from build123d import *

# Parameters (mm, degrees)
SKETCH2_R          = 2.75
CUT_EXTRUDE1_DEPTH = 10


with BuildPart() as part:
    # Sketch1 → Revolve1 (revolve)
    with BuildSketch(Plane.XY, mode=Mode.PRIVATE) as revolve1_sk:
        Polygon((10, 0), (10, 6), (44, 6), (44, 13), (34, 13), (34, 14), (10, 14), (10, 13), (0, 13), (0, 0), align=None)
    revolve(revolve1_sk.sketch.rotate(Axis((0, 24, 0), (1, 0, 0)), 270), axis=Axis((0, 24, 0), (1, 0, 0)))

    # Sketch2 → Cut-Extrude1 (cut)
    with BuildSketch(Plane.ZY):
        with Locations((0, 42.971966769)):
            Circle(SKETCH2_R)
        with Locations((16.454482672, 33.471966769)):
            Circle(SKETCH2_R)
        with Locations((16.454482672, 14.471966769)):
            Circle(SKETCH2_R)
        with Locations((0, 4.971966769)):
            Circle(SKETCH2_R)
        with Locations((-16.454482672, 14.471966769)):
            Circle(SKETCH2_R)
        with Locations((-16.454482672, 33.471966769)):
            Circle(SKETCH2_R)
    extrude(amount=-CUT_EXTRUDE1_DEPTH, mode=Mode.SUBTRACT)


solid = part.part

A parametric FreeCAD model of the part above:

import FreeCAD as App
import Part
import Sketcher
from FreeCAD import Vector
Q = App.Units.Quantity


def add_polygon(sketch, points):
    """Adds a closed chain of lines whose ends are joined by coincident constraints."""
    first, n = sketch.GeometryCount, len(points)
    for a, b in zip(points, points[1:] + points[:1]):
        sketch.addGeometry(Part.LineSegment(App.Vector(*a, 0), App.Vector(*b, 0)), False)
    for i in range(n):
        sketch.addConstraint(Sketcher.Constraint("Coincident", first + i, 2, first + (i + 1) % n, 1))

doc = App.newDocument("Part")
params = doc.addObject("Spreadsheet::Sheet", "Params")
for row, (alias, value) in enumerate([
    ("sketch1_width", "34 mm"),
    ("sketch1_width2", "10 mm"),
    ("sketch1_height", "6 mm"),
    ("sketch1_height2", "7 mm"),
    ("sketch1_height3", "1 mm"),
    ("revolution_angle", "360 deg"),
    ("sketch2_diameter", "5.5 mm"),
    ("pocket1_length", "10 mm"),
], start=1):
    params.set(f"A{row}", alias)
    params.set(f"B{row}", "=" + value)
    params.setAlias(f"B{row}", alias)

body = doc.addObject("PartDesign::Body", "Body")

# Sketch on XY plane
sketch1 = body.newObject("Sketcher::SketchObject", "Sketch")
sketch1.AttachmentSupport = (doc.getObject("XY_Plane"), [""])
sketch1.MapMode = "FlatFace"
add_polygon(sketch1, [(10, 0), (10, 6), (44, 6), (44, 13), (34, 13), (34, 14), (10, 14), (10, 13), (0, 13), (0, 0)])  # lines 0-9
sketch1.addGeometry(Part.LineSegment(Vector(0, 24, 0), Vector(44, 24, 0)), True)  # axis
sketch1.addConstraint([
    Sketcher.Constraint("Vertical", 0),
    Sketcher.Constraint("Horizontal", 1),
    Sketcher.Constraint("Vertical", 2),
    Sketcher.Constraint("Horizontal", 3),
    Sketcher.Constraint("Vertical", 4),
    Sketcher.Constraint("Horizontal", 5),
    Sketcher.Constraint("Vertical", 6),
    Sketcher.Constraint("Horizontal", 7),
    Sketcher.Constraint("Vertical", 8),
    Sketcher.Constraint("Horizontal", 9),
    Sketcher.Constraint("Horizontal", 10),
    Sketcher.Constraint("Coincident", 8, 2, -1, 1),
    Sketcher.Constraint("PointOnObject", 10, 1, -2),
    Sketcher.Constraint("Horizontal", 3, 2, 6, 2),
    Sketcher.Constraint("Vertical", 0, 2, 5, 2),
    Sketcher.Constraint("Vertical", 2, 2, 10, 2),
    Sketcher.Constraint("Equal", 3, 7),
    Sketcher.Constraint("DistanceX", 1, 1, 1, 2, Q("34 mm")),
    Sketcher.Constraint("DistanceX", 3, 2, 3, 1, Q("10 mm")),
    Sketcher.Constraint("DistanceY", 0, 1, 0, 2, Q("6 mm")),
    Sketcher.Constraint("DistanceY", 2, 1, 2, 2, Q("7 mm")),
    Sketcher.Constraint("DistanceY", 4, 1, 4, 2, Q("1 mm")),
    Sketcher.Constraint("DistanceY", -1, 1, 10, 1, Q("24 mm")),
])
sketch1.setExpression("Constraints[27]", "Params.sketch1_width")
sketch1.setExpression("Constraints[28]", "Params.sketch1_width2")
sketch1.setExpression("Constraints[29]", "Params.sketch1_height")
sketch1.setExpression("Constraints[30]", "Params.sketch1_height2")
sketch1.setExpression("Constraints[31]", "Params.sketch1_height3")
revolution = body.newObject("PartDesign::Revolution", "Revolution")
revolution.Profile = sketch1
revolution.ReferenceAxis = (sketch1, ["Axis0"])
revolution.setExpression("Angle", "Params.revolution_angle")

# Sketch on YZ plane
sketch2 = body.newObject("Sketcher::SketchObject", "Sketch001")
sketch2.AttachmentSupport = (doc.getObject("YZ_Plane"), [""])
sketch2.MapMode = "FlatFace"
sketch2.addGeometry([
    Part.Circle(Vector(42.971967, 0, 0), Vector(0, 0, 1), 2.75),  # 0
    Part.Circle(Vector(33.471967, 16.454483, 0), Vector(0, 0, 1), 2.75),  # 1
    Part.Circle(Vector(14.471967, 16.454483, 0), Vector(0, 0, 1), 2.75),  # 2
    Part.Circle(Vector(4.971967, 0, 0), Vector(0, 0, 1), 2.75),  # 3
    Part.Circle(Vector(14.471967, -16.454483, 0), Vector(0, 0, 1), 2.75),  # 4
    Part.Circle(Vector(33.471967, -16.454483, 0), Vector(0, 0, 1), 2.75),  # 5
], False)
sketch2.addConstraint([
    Sketcher.Constraint("Equal", 0, 1),
    Sketcher.Constraint("Equal", 1, 2),
    Sketcher.Constraint("Equal", 2, 3),
    Sketcher.Constraint("Equal", 3, 4),
    Sketcher.Constraint("Equal", 4, 5),
    Sketcher.Constraint("Symmetric", 2, 3, 4, 3, -1),
    Sketcher.Constraint("Symmetric", 1, 3, 5, 3, -1),
    Sketcher.Constraint("PointOnObject", 0, 3, -1),
    Sketcher.Constraint("PointOnObject", 3, 3, -1),
    Sketcher.Constraint("Horizontal", 1, 3, 2, 3),
    Sketcher.Constraint("Diameter", 0, Q("5.5 mm")),
    Sketcher.Constraint("DistanceX", 2, 3, 1, 3, Q("19 mm")),
    Sketcher.Constraint("DistanceX", 3, 3, 0, 3, Q("38 mm")),
    Sketcher.Constraint("DistanceX", 1, 3, 0, 3, Q("9.5 mm")),
    Sketcher.Constraint("DistanceX", -1, 1, 0, 3, Q("42.971967 mm")),
    Sketcher.Constraint("DistanceY", -1, 1, 1, 3, Q("16.454483 mm")),
])
sketch2.setExpression("Constraints[10]", "Params.sketch2_diameter")
pocket1 = body.newObject("PartDesign::Pocket", "Pocket")
pocket1.Profile = sketch2
pocket1.setExpression("Length", "Params.pocket1_length")
pocket1.Reversed = True

doc.recompute()
